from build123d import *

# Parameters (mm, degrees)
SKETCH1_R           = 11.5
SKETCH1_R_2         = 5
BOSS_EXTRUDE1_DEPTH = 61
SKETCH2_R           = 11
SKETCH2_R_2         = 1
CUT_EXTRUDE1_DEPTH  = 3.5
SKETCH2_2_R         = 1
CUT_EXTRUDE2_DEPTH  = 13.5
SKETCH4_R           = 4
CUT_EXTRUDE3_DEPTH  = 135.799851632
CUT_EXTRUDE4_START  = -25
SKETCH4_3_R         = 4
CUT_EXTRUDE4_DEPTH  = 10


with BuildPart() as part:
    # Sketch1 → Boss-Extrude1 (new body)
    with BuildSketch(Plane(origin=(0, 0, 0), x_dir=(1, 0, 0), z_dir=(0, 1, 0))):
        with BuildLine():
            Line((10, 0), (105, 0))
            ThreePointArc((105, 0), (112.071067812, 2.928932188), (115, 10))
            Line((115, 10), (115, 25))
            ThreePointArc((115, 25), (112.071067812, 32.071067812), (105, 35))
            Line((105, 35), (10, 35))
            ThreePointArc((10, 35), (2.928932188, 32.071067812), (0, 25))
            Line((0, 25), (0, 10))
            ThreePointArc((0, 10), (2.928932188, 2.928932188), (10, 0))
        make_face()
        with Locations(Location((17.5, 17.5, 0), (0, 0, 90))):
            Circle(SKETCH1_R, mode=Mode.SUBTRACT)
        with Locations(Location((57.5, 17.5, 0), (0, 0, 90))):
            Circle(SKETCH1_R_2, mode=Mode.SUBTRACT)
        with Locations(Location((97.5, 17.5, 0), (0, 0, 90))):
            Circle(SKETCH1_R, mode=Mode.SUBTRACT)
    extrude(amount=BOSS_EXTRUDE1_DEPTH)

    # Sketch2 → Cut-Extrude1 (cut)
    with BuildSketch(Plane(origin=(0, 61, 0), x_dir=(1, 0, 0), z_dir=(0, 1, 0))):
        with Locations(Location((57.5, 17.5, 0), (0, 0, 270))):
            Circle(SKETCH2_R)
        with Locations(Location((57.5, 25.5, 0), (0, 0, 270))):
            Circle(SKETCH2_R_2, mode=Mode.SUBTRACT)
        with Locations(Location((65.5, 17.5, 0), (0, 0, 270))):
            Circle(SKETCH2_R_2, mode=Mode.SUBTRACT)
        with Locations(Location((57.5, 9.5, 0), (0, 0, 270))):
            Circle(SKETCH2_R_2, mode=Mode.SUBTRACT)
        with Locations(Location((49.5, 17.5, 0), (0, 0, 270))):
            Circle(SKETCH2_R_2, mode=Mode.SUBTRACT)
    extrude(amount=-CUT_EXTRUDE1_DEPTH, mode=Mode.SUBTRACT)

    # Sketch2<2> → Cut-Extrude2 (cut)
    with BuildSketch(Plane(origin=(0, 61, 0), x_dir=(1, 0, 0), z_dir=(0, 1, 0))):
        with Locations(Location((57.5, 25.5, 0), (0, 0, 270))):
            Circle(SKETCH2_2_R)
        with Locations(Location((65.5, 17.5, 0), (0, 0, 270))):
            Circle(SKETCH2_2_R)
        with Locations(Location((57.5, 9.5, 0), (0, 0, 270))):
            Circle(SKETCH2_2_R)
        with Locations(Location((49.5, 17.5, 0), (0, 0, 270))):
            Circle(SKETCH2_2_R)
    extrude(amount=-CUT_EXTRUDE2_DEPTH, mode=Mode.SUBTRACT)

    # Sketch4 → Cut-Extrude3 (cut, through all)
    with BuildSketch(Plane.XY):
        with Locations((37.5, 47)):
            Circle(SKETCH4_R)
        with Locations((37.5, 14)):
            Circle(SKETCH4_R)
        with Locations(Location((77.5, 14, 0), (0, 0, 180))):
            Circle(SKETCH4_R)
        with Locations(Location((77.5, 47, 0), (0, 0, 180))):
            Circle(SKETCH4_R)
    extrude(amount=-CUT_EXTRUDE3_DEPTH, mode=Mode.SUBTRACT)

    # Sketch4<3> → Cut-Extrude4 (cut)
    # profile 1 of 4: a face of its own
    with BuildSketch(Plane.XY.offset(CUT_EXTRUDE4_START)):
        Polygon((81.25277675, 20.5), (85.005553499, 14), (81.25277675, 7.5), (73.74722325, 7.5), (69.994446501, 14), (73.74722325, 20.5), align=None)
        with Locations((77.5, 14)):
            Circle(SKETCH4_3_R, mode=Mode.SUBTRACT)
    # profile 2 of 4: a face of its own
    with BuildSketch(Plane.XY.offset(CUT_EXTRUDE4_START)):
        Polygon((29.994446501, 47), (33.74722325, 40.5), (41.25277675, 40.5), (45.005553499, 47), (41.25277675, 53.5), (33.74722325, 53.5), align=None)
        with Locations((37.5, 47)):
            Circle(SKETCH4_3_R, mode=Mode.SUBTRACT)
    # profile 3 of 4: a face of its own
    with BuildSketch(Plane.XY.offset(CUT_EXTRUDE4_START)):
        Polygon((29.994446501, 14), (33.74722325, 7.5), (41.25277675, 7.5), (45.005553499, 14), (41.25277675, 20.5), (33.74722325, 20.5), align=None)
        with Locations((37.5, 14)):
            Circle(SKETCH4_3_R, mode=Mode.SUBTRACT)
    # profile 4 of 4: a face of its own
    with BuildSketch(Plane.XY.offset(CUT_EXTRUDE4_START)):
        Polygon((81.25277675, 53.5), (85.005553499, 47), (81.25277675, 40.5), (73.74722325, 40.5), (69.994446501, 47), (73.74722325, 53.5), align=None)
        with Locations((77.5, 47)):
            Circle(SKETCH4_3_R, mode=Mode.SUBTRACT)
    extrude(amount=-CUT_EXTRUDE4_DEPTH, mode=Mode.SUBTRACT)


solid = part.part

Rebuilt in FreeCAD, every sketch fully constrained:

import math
import FreeCAD as App
import Part
import Sketcher
from FreeCAD import Vector
Q = App.Units.Quantity


def add_polygon(sketch, points):
    """Adds a closed chain of lines whose ends are joined by coincident constraints."""
    first, n = sketch.GeometryCount, len(points)
    for a, b in zip(points, points[1:] + points[:1]):
        sketch.addGeometry(Part.LineSegment(App.Vector(*a, 0), App.Vector(*b, 0)), False)
    for i in range(n):
        sketch.addConstraint(Sketcher.Constraint("Coincident", first + i, 2, first + (i + 1) % n, 1))

doc = App.newDocument("Part")
params = doc.addObject("Spreadsheet::Sheet", "Params")
for row, (alias, value) in enumerate([
    ("sketch1_diameter", "23 mm"),
    ("sketch1_diameter2", "10 mm"),
    ("sketch1_radius", "10 mm"),
    ("sketch1_width", "95 mm"),
    ("sketch1_height", "15 mm"),
    ("pad1_length", "61 mm"),
    ("sketch2_diameter", "22 mm"),
    ("sketch2_diameter2", "2 mm"),
    ("pocket1_length", "3.5 mm"),
    ("sketch3_diameter", "2 mm"),
    ("pocket2_length", "13.5 mm"),
    ("sketch4_diameter", "8 mm"),
    ("sketch5_diameter", "8 mm"),
    ("pocket4_length", "10 mm"),
], start=1):
    params.set(f"A{row}", alias)
    params.set(f"B{row}", "=" + value)
    params.setAlias(f"B{row}", alias)

body = doc.addObject("PartDesign::Body", "Body")

# Sketch on XZ plane
sketch1 = body.newObject("Sketcher::SketchObject", "Sketch")
sketch1.AttachmentSupport = (doc.getObject("XZ_Plane"), [""])
sketch1.MapMode = "FlatFace"
sketch1.addGeometry([
    Part.LineSegment(Vector(10, 0, 0), Vector(105, 0, 0)),  # 0
    Part.ArcOfCircle(Part.Circle(Vector(105, -10, 0), Vector(0, 0, 1), 10), math.radians(0), math.radians(90)),  # 1
    Part.LineSegment(Vector(115, -10, 0), Vector(115, -25, 0)),  # 2
    Part.ArcOfCircle(Part.Circle(Vector(105, -25, 0), Vector(0, 0, 1), 10), math.radians(-90), math.radians(0)),  # 3
    Part.LineSegment(Vector(105, -35, 0), Vector(10, -35, 0)),  # 4
    Part.ArcOfCircle(Part.Circle(Vector(10, -25, 0), Vector(0, 0, 1), 10), math.radians(180), math.radians(270)),  # 5
    Part.LineSegment(Vector(0, -25, 0), Vector(0, -10, 0)),  # 6
    Part.ArcOfCircle(Part.Circle(Vector(10, -10, 0), Vector(0, 0, 1), 10), math.radians(90), math.radians(180)),  # 7
    Part.Circle(Vector(18, -18, 0), Vector(0, 0, 1), 12),  # 8
    Part.Circle(Vector(58, -18, 0), Vector(0, 0, 1), 5),  # 9
    Part.Circle(Vector(98, -18, 0), Vector(0, 0, 1), 12),  # 10
], False)
sketch1.addConstraint([
    Sketcher.Constraint("Tangent", 0, 2, 1, 2),
    Sketcher.Constraint("Tangent", 1, 1, 2, 1),
    Sketcher.Constraint("Tangent", 2, 2, 3, 2),
    Sketcher.Constraint("Tangent", 3, 1, 4, 1),
    Sketcher.Constraint("Tangent", 4, 2, 5, 2),
    Sketcher.Constraint("Tangent", 5, 1, 6, 1),
    Sketcher.Constraint("Tangent", 6, 2, 7, 2),
    Sketcher.Constraint("Tangent", 7, 1, 0, 1),
    Sketcher.Constraint("Horizontal", 0),
    Sketcher.Constraint("Vertical", 2),
    Sketcher.Constraint("Horizontal", 4),
    Sketcher.Constraint("Vertical", 6),
    Sketcher.Constraint("Equal", 1, 3),
    Sketcher.Constraint("Equal", 3, 5),
    Sketcher.Constraint("Equal", 5, 7),
    Sketcher.Constraint("Equal", 8, 10),
    Sketcher.Constraint("PointOnObject", 0, 2, -1),
    Sketcher.Constraint("PointOnObject", 5, 1, -2),
    Sketcher.Constraint("Horizontal", 8, 3, 9, 3),
    Sketcher.Constraint("Horizontal", 9, 3, 10, 3),
    Sketcher.Constraint("Diameter", 8, Q("23 mm")),
    Sketcher.Constraint("Diameter", 9, Q("10 mm")),
    Sketcher.Constraint("Radius", 1, Q("10 mm")),
    Sketcher.Constraint("DistanceX", 0, 1, 0, 2, Q("95 mm")),
    Sketcher.Constraint("DistanceY", 2, 2, 2, 1, Q("15 mm")),
    Sketcher.Constraint("DistanceX", 8, 3, 9, 3, Q("40 mm")),
    Sketcher.Constraint("DistanceX", 9, 3, 10, 3, Q("40 mm")),
    Sketcher.Constraint("DistanceX", -1, 1, 8, 3, Q("17.5 mm")),
    Sketcher.Constraint("DistanceY", 8, 3, -1, 1, Q("17.5 mm")),
])
sketch1.setExpression("Constraints[20]", "Params.sketch1_diameter")
sketch1.setExpression("Constraints[21]", "Params.sketch1_diameter2")
sketch1.setExpression("Constraints[22]", "Params.sketch1_radius")
sketch1.setExpression("Constraints[23]", "Params.sketch1_width")
sketch1.setExpression("Constraints[24]", "Params.sketch1_height")
pad1 = body.newObject("PartDesign::Pad", "Pad")
pad1.Profile = sketch1
pad1.setExpression("Length", "Params.pad1_length")
pad1.Reversed = True

# Sketch on XZ plane
sketch2 = body.newObject("Sketcher::SketchObject", "Sketch001")
sketch2.AttachmentSupport = (doc.getObject("XZ_Plane"), [""])
sketch2.MapMode = "FlatFace"
sketch2.AttachmentOffset = App.Placement(Vector(0, 0, -61), App.Rotation())
sketch2.addGeometry([
    Part.Circle(Vector(57.5, -17.5, 0), Vector(0, 0, 1), 11),  # 0
    Part.Circle(Vector(57.5, -25.5, 0), Vector(0, 0, 1), 1),  # 1
    Part.Circle(Vector(49.5, -17.5, 0), Vector(0, 0, 1), 1),  # 2
    Part.Circle(Vector(57.5, -9.5, 0), Vector(0, 0, 1), 1),  # 3
    Part.Circle(Vector(65.5, -17.5, 0), Vector(0, 0, 1), 1),  # 4
], False)
sketch2.addConstraint([
    Sketcher.Constraint("Equal", 1, 2),
    Sketcher.Constraint("Equal", 2, 3),
    Sketcher.Constraint("Equal", 3, 4),
    Sketcher.Constraint("Horizontal", 0, 3, 2, 3),
    Sketcher.Constraint("Horizontal", 2, 3, 4, 3),
    Sketcher.Constraint("Vertical", 0, 3, 1, 3),
    Sketcher.Constraint("Vertical", 1, 3, 3, 3),
    Sketcher.Constraint("Diameter", 0, Q("22 mm")),
    Sketcher.Constraint("Diameter", 1, Q("2 mm")),
    Sketcher.Constraint("DistanceY", 1, 3, 0, 3, Q("8 mm")),
    Sketcher.Constraint("DistanceX", 2, 3, 0, 3, Q("8 mm")),
    Sketcher.Constraint("DistanceY", 0, 3, 3, 3, Q("8 mm")),
    Sketcher.Constraint("DistanceX", 0, 3, 4, 3, Q("8 mm")),
    Sketcher.Constraint("DistanceX", -1, 1, 0, 3, Q("57.5 mm")),
    Sketcher.Constraint("DistanceY", 0, 3, -1, 1, Q("17.5 mm")),
])
sketch2.setExpression("Constraints[7]", "Params.sketch2_diameter")
sketch2.setExpression("Constraints[8]", "Params.sketch2_diameter2")
pocket1 = body.newObject("PartDesign::Pocket", "Pocket")
pocket1.Profile = sketch2
pocket1.setExpression("Length", "Params.pocket1_length")
pocket1.Reversed = True

# Sketch on XZ plane
sketch3 = body.newObject("Sketcher::SketchObject", "Sketch002")
sketch3.AttachmentSupport = (doc.getObject("XZ_Plane"), [""])
sketch3.MapMode = "FlatFace"
sketch3.AttachmentOffset = App.Placement(Vector(0, 0, -61), App.Rotation())
sketch3.addGeometry([
    Part.Circle(Vector(57.5, -25.5, 0), Vector(0, 0, 1), 1),
    Part.Circle(Vector(65.5, -17.5, 0), Vector(0, 0, 1), 1),
    Part.Circle(Vector(57.5, -9.5, 0), Vector(0, 0, 1), 1),
    Part.Circle(Vector(49.5, -17.5, 0), Vector(0, 0, 1), 1),
], False)
sketch3.addConstraint([
    Sketcher.Constraint("Equal", 0, 1),
    Sketcher.Constraint("Equal", 1, 2),
    Sketcher.Constraint("Equal", 2, 3),
    Sketcher.Constraint("Horizontal", 1, 3, 3, 3),
    Sketcher.Constraint("Vertical", 0, 3, 2, 3),
    Sketcher.Constraint("Diameter", 0, Q("2 mm")),
    Sketcher.Constraint("DistanceX", 0, 3, 1, 3, Q("8 mm")),
    Sketcher.Constraint("DistanceY", 0, 3, 1, 3, Q("8 mm")),
    Sketcher.Constraint("DistanceY", 1, 3, 2, 3, Q("8 mm")),
    Sketcher.Constraint("DistanceX", 3, 3, 0, 3, Q("8 mm")),
    Sketcher.Constraint("DistanceX", -1, 1, 0, 3, Q("57.5 mm")),
    Sketcher.Constraint("DistanceY", 0, 3, -1, 1, Q("25.5 mm")),
])
sketch3.setExpression("Constraints[5]", "Params.sketch3_diameter")
pocket2 = body.newObject("PartDesign::Pocket", "Pocket001")
pocket2.Profile = sketch3
pocket2.setExpression("Length", "Params.pocket2_length")
pocket2.Reversed = True

# Sketch on XY plane
sketch4 = body.newObject("Sketcher::SketchObject", "Sketch003")
sketch4.AttachmentSupport = (doc.getObject("XY_Plane"), [""])
sketch4.MapMode = "FlatFace"
sketch4.addGeometry([
    Part.Circle(Vector(37.5, 47, 0), Vector(0, 0, 1), 4),
    Part.Circle(Vector(37.5, 14, 0), Vector(0, 0, 1), 4),
    Part.Circle(Vector(77.5, 14, 0), Vector(0, 0, 1), 4),
    Part.Circle(Vector(77.5, 47, 0), Vector(0, 0, 1), 4),
], False)
sketch4.addConstraint([
    Sketcher.Constraint("Equal", 0, 1),
    Sketcher.Constraint("Equal", 1, 2),
    Sketcher.Constraint("Equal", 2, 3),
    Sketcher.Constraint("Horizontal", 1, 3, 2, 3),
    Sketcher.Constraint("Horizontal", 0, 3, 3, 3),
    Sketcher.Constraint("Vertical", 0, 3, 1, 3),
    Sketcher.Constraint("Vertical", 2, 3, 3, 3),
    Sketcher.Constraint("Diameter", 0, Q("8 mm")),
    Sketcher.Constraint("DistanceY", -1, 1, 0, 3, Q("47 mm")),
    Sketcher.Constraint("DistanceY", -1, 1, 1, 3, Q("14 mm")),
    Sketcher.Constraint("DistanceX", 1, 3, 2, 3, Q("40 mm")),
    Sketcher.Constraint("DistanceX", -1, 1, 0, 3, Q("37.5 mm")),
])
sketch4.setExpression("Constraints[7]", "Params.sketch4_diameter")
pocket3 = body.newObject("PartDesign::Pocket", "Pocket002")
pocket3.Profile = sketch4
pocket3.Type = "ThroughAll"

# Sketch on XY plane
sketch5 = body.newObject("Sketcher::SketchObject", "Sketch004")
sketch5.AttachmentSupport = (doc.getObject("XY_Plane"), [""])
sketch5.MapMode = "FlatFace"
sketch5.AttachmentOffset = App.Placement(Vector(0, 0, -25), App.Rotation())
add_polygon(sketch5, [(85, 14), (81.3, 20.5), (73.7, 20.5), (70, 14), (73.7, 7.5), (81.3, 7.5)])  # lines 0-5
sketch5.addGeometry(Part.Circle(Vector(77.5, 14, 0), Vector(0, 0, 1), 4), False)  # 6
add_polygon(sketch5, [(30, 47), (33.7, 40.5), (41.3, 40.5), (45, 47), (41.3, 53.5), (33.7, 53.5)])  # lines 7-12
sketch5.addGeometry(Part.Circle(Vector(37.5, 47, 0), Vector(0, 0, 1), 4), False)  # 13
add_polygon(sketch5, [(30, 14), (33.7, 7.5), (41.3, 7.5), (45, 14), (41.3, 20.5), (33.7, 20.5)])  # lines 14-19
sketch5.addGeometry(Part.Circle(Vector(37.5, 14, 0), Vector(0, 0, 1), 4), False)  # 20
add_polygon(sketch5, [(85, 47), (81.3, 53.5), (73.7, 53.5), (70, 47), (73.7, 40.5), (81.3, 40.5)])  # lines 21-26
sketch5.addGeometry(Part.Circle(Vector(77.5, 47, 0), Vector(0, 0, 1), 4), False)  # 27
sketch5.addConstraint([
    Sketcher.Constraint("Horizontal", 1),
    Sketcher.Constraint("Horizontal", 4),
    Sketcher.Constraint("Horizontal", 8),
    Sketcher.Constraint("Horizontal", 11),
    Sketcher.Constraint("Horizontal", 15),
    Sketcher.Constraint("Horizontal", 18),
    Sketcher.Constraint("Horizontal", 22),
    Sketcher.Constraint("Horizontal", 25),
    Sketcher.Constraint("Equal", 6, 13),
    Sketcher.Constraint("Equal", 13, 20),
    Sketcher.Constraint("Equal", 20, 27),
    Sketcher.Constraint("Parallel", 0, 3),
    Sketcher.Constraint("Parallel", 2, 5),
    Sketcher.Constraint("Parallel", 3, 7),
    Sketcher.Constraint("Parallel", 5, 9),
    Sketcher.Constraint("Parallel", 7, 10),
    Sketcher.Constraint("Parallel", 9, 12),
    Sketcher.Constraint("Parallel", 10, 14),
    Sketcher.Constraint("Parallel", 12, 16),
    Sketcher.Constraint("Parallel", 14, 17),
    Sketcher.Constraint("Parallel", 16, 19),
    Sketcher.Constraint("Parallel", 17, 21),
    Sketcher.Constraint("Parallel", 19, 23),
    Sketcher.Constraint("Parallel", 21, 24),
    Sketcher.Constraint("Parallel", 23, 26),
    Sketcher.Constraint("Horizontal", 6, 3, 20, 3),
    Sketcher.Constraint("Horizontal", 13, 3, 27, 3),
    Sketcher.Constraint("Horizontal", 20, 3, 2, 2),
    Sketcher.Constraint("Horizontal", 2, 2, 5, 2),
    Sketcher.Constraint("Horizontal", 27, 3, 9, 2),
    Sketcher.Constraint("Horizontal", 9, 2, 12, 2),
    Sketcher.Constraint("Horizontal", 4, 2, 14, 2),
    Sketcher.Constraint("Horizontal", 5, 2, 16, 2),
    Sketcher.Constraint("Horizontal", 1, 2, 17, 2),
    Sketcher.Constraint("Horizontal", 16, 2, 19, 2),
    Sketcher.Constraint("Horizontal", 11, 2, 21, 2),
    Sketcher.Constraint("Horizontal", 12, 2, 23, 2),
    Sketcher.Constraint("Horizontal", 8, 2, 24, 2),
    Sketcher.Constraint("Horizontal", 23, 2, 26, 2),
    Sketcher.Constraint("Vertical", 13, 3, 20, 3),
    Sketcher.Constraint("Vertical", 6, 3, 27, 3),
    Sketcher.Constraint("Vertical", 1, 2, 3, 2),
    Sketcher.Constraint("Vertical", 0, 2, 4, 2),
    Sketcher.Constraint("Vertical", 8, 2, 10, 2),
    Sketcher.Constraint("Vertical", 11, 2, 14, 2),
    Sketcher.Constraint("Vertical", 10, 2, 15, 2),
    Sketcher.Constraint("Vertical", 9, 2, 16, 2),
    Sketcher.Constraint("Vertical", 4, 2, 21, 2),
    Sketcher.Constraint("Vertical", 3, 2, 22, 2),
    Sketcher.Constraint("Equal", 4, 8),
    Sketcher.Constraint("Diameter", 6, Q("8 mm")),
    Sketcher.Constraint("Angle", 0, Q("120 deg")),
    Sketcher.Constraint("DistanceY", -1, 1, 6, 3, Q("14 mm")),
    Sketcher.Constraint("DistanceY", -1, 1, 13, 3, Q("47 mm")),
    Sketcher.Constraint("DistanceX", 13, 3, 6, 3, Q("40 mm")),
    Sketcher.Constraint("DistanceY", 3, 2, 1, 2, Q("13 mm")),
    Sketcher.Constraint("DistanceX", 7, 2, 1, 2, Q("40 mm")),
    Sketcher.Constraint("DistanceX", -1, 1, 6, 3, Q("77.5 mm")),
    Sketcher.Constraint("DistanceX", 1, 2, 1, 1, Q("7.505553 mm")),
    Sketcher.Constraint("DistanceX", -1, 1, 0, 2, Q("81.252777 mm")),
])
sketch5.setExpression("Constraints[74]", "Params.sketch5_diameter")
pocket4 = body.newObject("PartDesign::Pocket", "Pocket003")
pocket4.Profile = sketch5
pocket4.setExpression("Length", "Params.pocket4_length")

doc.recompute()
